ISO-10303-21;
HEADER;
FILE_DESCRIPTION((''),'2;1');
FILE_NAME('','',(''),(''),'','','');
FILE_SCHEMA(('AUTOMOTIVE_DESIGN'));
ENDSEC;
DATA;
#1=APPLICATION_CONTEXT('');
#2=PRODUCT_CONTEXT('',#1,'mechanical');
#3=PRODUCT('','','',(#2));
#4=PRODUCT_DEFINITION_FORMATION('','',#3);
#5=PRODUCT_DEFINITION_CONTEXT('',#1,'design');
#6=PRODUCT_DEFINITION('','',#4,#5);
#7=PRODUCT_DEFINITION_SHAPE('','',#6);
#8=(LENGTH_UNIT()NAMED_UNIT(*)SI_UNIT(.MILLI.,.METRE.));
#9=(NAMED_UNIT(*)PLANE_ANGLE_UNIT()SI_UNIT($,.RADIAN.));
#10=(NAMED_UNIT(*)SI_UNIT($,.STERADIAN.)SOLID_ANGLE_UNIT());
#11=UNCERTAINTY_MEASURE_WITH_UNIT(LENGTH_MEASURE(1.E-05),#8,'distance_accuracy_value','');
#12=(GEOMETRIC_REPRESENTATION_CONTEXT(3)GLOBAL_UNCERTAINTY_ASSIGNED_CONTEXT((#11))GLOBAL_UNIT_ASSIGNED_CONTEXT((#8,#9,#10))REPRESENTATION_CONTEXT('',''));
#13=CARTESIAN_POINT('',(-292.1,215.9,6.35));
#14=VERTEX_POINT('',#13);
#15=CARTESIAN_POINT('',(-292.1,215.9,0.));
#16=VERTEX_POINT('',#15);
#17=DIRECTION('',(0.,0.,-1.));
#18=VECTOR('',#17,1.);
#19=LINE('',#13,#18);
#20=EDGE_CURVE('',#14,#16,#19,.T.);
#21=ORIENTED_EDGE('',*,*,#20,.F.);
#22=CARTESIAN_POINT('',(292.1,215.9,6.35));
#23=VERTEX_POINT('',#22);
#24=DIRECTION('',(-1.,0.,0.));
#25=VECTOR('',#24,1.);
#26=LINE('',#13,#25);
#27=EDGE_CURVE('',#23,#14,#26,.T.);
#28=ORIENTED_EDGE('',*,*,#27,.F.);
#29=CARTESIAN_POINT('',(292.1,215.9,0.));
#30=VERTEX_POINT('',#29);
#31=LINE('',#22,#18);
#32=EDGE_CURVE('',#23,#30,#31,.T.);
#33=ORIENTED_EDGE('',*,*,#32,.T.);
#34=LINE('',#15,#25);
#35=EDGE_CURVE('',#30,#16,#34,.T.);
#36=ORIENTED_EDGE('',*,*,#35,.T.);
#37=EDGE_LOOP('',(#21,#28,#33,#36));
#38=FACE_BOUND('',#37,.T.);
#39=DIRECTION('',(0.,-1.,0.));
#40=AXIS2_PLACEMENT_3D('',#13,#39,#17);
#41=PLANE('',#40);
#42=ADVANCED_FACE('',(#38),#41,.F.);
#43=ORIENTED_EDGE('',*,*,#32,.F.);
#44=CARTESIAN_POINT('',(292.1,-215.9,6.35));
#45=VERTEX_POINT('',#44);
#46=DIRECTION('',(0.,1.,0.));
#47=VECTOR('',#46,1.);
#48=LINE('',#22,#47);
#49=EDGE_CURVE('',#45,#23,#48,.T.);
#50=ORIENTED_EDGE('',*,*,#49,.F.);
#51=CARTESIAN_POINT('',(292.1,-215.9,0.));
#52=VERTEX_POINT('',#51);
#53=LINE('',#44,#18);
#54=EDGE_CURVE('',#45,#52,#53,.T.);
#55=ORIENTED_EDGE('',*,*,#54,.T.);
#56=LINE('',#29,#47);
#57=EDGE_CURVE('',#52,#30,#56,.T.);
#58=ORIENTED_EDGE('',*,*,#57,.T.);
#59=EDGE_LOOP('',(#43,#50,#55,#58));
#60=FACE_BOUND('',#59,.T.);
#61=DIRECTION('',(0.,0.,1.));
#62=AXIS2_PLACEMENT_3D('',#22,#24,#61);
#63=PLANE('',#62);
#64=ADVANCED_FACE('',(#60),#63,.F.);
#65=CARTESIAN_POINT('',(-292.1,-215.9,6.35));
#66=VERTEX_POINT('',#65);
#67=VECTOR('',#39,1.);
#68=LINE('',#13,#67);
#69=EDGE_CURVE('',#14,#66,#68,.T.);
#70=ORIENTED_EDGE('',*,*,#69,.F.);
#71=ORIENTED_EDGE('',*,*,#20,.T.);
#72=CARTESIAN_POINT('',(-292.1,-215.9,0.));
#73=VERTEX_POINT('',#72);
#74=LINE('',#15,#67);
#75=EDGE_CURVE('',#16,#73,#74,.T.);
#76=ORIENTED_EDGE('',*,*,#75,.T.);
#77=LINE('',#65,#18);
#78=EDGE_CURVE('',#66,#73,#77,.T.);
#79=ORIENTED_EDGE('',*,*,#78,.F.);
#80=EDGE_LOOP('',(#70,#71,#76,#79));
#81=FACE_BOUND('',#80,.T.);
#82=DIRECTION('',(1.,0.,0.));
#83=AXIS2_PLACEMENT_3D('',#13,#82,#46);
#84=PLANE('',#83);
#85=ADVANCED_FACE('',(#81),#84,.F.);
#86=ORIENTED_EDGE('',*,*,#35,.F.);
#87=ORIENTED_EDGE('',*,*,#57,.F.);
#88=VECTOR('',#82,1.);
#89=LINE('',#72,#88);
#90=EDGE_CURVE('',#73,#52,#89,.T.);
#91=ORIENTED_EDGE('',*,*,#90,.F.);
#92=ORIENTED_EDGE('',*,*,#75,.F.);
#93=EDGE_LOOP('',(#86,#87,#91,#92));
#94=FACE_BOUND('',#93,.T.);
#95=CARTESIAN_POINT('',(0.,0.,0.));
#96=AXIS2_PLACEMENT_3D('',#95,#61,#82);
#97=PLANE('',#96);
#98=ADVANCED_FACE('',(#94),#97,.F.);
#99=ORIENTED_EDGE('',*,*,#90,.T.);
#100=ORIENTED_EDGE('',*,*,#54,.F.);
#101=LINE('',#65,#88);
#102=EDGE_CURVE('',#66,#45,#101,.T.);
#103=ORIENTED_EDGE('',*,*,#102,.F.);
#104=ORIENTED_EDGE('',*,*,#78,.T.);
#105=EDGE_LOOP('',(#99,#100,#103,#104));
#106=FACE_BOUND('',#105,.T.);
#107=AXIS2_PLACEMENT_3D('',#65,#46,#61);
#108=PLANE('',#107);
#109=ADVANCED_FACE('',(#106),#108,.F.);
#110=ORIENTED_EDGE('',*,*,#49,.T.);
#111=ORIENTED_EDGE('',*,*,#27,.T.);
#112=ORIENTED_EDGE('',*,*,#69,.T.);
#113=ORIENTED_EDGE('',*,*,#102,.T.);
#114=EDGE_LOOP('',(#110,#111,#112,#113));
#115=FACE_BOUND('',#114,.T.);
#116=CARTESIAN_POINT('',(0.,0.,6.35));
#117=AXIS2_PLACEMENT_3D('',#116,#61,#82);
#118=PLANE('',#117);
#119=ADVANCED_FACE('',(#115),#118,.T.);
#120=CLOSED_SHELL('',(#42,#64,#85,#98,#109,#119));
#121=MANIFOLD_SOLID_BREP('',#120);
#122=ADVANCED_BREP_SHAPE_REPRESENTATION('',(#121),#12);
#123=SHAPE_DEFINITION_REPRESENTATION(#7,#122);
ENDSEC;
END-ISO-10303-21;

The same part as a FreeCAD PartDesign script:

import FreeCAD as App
import Part
import Sketcher
Q = App.Units.Quantity

doc = App.newDocument("Part")
params = doc.addObject("Spreadsheet::Sheet", "Params")
for row, (alias, value) in enumerate([
    ("sketch1_width", "23 in"),
    ("sketch1_height", "17 in"),
    ("pad1_length", "0.25 in"),
], start=1):
    params.set(f"A{row}", alias)
    params.set(f"B{row}", "=" + value)
    params.setAlias(f"B{row}", alias)

body = doc.addObject("PartDesign::Body", "Body")

sketch1 = doc.addObject("Sketcher::SketchObject", "Sketch")
body.addObject(sketch1)
sketch1.AttachmentSupport = (doc.XY_Plane, [""])
sketch1.MapMode = "FlatFace"
sketch1.addGeometry([
    Part.LineSegment(App.Vector(-292, 216, 0), App.Vector(-292, -216, 0)),
    Part.LineSegment(App.Vector(-292, -216, 0), App.Vector(292, -216, 0)),
    Part.LineSegment(App.Vector(292, -216, 0), App.Vector(292, 216, 0)),
    Part.LineSegment(App.Vector(292, 216, 0), App.Vector(-292, 216, 0)),
], False)
sketch1.addConstraint([
    Sketcher.Constraint("Coincident", 0, 2, 1, 1),
    Sketcher.Constraint("Coincident", 1, 2, 2, 1),
    Sketcher.Constraint("Coincident", 2, 2, 3, 1),
    Sketcher.Constraint("Coincident", 3, 2, 0, 1),
    Sketcher.Constraint("Vertical", 0),
    Sketcher.Constraint("Horizontal", 1),
    Sketcher.Constraint("Vertical", 2),
    Sketcher.Constraint("Horizontal", 3),
    Sketcher.Constraint("Symmetric", 0, 2, 2, 2, -1, 1),
    Sketcher.Constraint("DistanceX", 1, 1, 1, 2, Q("23 in")),
    Sketcher.Constraint("DistanceY", 0, 2, 0, 1, Q("17 in")),
])
sketch1.setExpression("Constraints[9]", "Params.sketch1_width")
sketch1.setExpression("Constraints[10]", "Params.sketch1_height")
pad1 = doc.addObject("PartDesign::Pad", "Pad")
body.addObject(pad1)
pad1.Profile = sketch1
pad1.setExpression("Length", "Params.pad1_length")

doc.recompute()
